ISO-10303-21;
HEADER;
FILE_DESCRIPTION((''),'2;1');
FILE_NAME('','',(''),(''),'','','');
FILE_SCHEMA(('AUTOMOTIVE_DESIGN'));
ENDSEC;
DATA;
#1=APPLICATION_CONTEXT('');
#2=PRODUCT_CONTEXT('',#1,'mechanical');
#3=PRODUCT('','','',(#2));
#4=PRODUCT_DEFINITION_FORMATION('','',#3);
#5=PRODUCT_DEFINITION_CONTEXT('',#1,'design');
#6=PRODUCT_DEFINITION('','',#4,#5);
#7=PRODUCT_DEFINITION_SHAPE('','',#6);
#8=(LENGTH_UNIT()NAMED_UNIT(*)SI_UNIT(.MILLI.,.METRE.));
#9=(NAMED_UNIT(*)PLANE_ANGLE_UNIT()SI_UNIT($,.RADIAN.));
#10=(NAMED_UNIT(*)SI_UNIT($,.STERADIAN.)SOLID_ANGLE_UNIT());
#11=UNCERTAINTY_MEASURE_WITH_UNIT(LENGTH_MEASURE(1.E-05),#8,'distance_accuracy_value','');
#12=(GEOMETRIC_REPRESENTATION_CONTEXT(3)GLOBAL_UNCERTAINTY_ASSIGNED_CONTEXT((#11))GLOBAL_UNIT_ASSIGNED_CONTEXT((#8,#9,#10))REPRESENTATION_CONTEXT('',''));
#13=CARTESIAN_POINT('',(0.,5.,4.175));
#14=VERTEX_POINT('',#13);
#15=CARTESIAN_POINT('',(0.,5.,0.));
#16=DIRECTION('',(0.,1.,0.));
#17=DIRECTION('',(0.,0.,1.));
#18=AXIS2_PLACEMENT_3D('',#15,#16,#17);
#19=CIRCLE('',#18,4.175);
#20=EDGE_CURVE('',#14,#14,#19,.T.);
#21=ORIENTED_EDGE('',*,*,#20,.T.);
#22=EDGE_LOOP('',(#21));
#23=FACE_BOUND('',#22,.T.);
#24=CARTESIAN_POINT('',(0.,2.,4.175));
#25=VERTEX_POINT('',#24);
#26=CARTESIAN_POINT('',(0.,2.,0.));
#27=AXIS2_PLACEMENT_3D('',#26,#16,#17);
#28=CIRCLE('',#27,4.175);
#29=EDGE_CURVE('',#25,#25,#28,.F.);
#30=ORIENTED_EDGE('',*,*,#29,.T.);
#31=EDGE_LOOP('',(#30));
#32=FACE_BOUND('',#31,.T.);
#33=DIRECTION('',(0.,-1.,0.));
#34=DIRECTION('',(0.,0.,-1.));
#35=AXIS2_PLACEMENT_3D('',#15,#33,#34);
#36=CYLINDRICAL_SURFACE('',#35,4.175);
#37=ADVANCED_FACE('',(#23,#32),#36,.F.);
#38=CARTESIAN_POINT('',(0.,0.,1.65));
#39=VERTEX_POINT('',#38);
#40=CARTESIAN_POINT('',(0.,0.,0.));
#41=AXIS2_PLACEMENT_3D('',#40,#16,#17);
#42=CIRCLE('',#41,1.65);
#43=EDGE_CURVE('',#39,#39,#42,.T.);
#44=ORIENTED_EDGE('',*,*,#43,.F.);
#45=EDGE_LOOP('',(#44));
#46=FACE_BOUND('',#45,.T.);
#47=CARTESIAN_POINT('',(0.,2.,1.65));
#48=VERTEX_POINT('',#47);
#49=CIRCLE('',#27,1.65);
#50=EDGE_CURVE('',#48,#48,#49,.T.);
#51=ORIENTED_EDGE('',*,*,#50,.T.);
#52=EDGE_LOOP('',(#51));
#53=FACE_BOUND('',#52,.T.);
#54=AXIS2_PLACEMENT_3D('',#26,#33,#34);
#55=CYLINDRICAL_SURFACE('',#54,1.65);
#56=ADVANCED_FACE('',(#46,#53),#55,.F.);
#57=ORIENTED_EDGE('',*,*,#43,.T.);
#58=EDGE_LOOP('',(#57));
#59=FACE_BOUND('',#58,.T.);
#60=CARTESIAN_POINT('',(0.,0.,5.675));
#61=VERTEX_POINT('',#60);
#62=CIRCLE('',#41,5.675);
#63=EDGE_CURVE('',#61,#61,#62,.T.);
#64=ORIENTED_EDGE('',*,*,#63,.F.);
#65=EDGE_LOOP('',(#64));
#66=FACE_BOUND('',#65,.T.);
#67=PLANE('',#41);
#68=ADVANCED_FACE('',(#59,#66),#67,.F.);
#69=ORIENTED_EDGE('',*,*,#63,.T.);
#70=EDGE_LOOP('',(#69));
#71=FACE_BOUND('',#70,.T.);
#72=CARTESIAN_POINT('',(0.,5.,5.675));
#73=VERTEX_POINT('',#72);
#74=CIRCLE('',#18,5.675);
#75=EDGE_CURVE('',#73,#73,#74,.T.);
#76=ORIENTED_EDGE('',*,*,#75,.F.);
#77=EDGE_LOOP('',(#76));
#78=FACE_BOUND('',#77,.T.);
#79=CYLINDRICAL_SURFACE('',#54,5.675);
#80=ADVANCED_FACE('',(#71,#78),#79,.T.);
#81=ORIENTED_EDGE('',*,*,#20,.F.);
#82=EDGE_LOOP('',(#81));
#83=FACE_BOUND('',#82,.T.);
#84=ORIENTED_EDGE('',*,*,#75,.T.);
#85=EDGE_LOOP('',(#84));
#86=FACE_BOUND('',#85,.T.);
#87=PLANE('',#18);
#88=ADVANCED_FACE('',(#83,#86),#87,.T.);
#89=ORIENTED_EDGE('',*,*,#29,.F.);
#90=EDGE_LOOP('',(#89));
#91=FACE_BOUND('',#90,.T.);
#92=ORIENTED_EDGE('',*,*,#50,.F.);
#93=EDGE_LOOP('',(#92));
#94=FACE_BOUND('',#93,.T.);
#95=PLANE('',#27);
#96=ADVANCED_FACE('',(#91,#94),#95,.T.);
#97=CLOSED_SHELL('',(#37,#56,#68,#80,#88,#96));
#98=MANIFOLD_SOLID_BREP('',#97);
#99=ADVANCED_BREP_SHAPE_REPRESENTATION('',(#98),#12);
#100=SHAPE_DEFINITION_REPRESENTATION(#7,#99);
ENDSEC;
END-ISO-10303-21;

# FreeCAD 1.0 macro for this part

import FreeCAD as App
import Part
import Sketcher

doc = App.newDocument("Part")
body = doc.addObject("PartDesign::Body", "Body")

# Sketch on XZ plane
sketch1 = body.newObject("Sketcher::SketchObject", "Sketch")
sketch1.AttachmentSupport = (doc.getObject("XZ_Plane"), [""])
sketch1.MapMode = "FlatFace"
sketch1.addGeometry(Part.Circle(App.Vector(0, 0, 0), App.Vector(0, 0, 1), 5.7), False)
sketch1.addGeometry(Part.Circle(App.Vector(0, 0, 0), App.Vector(0, 0, 1), 1.6), False)
sketch1.addConstraint(Sketcher.Constraint("Coincident", 0, 3, -1, 1))
sketch1.addConstraint(Sketcher.Constraint("Coincident", 1, 3, -1, 1))
sketch1.addConstraint(Sketcher.Constraint("Diameter", 1, 3.3))
sketch1.addConstraint(Sketcher.Constraint("Diameter", 0, 11.35))
pad1 = body.newObject("PartDesign::Pad", "Pad")
pad1.Profile = sketch1
pad1.Length = 2
pad1.Reversed = True

# Sketch on XZ plane
sketch2 = body.newObject("Sketcher::SketchObject", "Sketch001")
sketch2.AttachmentSupport = (doc.getObject("XZ_Plane"), [""])
sketch2.MapMode = "FlatFace"
sketch2.AttachmentOffset = App.Placement(App.Vector(0, 0, -2), App.Rotation())
sketch2.addGeometry(Part.Circle(App.Vector(0, 0, 0), App.Vector(0, 0, 1), 5.7), False)
sketch2.addGeometry(Part.Circle(App.Vector(0, 0, 0), App.Vector(0, 0, 1), 4.2), False)
sketch2.addConstraint(Sketcher.Constraint("Coincident", 0, 3, -1, 1))
sketch2.addConstraint(Sketcher.Constraint("Coincident", 1, 3, -1, 1))
sketch2.addConstraint(Sketcher.Constraint("Diameter", 0, 11.35))
sketch2.addConstraint(Sketcher.Constraint("Diameter", 1, 8.35))
pad2 = body.newObject("PartDesign::Pad", "Pad001")
pad2.Profile = sketch2
pad2.Length = 3
pad2.Reversed = True

doc.recompute()
